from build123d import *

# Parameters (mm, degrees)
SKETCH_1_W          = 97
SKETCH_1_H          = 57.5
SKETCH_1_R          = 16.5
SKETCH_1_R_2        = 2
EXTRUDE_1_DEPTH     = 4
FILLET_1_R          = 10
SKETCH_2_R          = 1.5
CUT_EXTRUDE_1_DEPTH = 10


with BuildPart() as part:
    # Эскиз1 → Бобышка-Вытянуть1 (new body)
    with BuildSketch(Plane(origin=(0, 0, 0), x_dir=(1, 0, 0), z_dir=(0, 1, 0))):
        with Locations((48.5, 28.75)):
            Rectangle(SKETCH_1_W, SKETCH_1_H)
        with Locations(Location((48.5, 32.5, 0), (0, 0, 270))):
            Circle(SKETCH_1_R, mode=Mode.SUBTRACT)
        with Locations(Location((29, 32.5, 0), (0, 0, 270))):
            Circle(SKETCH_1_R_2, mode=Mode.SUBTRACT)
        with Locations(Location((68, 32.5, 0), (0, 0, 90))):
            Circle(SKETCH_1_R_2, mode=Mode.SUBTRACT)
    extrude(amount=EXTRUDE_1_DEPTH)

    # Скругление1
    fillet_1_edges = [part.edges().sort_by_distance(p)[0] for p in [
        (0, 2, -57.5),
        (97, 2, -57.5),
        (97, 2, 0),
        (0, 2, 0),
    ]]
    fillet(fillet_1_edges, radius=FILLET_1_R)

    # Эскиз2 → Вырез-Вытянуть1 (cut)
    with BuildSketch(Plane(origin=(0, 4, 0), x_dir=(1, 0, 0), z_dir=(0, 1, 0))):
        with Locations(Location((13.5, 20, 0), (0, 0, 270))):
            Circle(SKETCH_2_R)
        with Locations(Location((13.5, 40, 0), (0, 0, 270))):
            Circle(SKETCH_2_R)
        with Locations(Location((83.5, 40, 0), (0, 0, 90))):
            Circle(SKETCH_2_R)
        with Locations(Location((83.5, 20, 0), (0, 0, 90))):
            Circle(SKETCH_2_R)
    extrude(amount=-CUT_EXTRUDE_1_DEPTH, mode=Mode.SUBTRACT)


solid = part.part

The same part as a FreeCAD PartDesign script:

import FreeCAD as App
import Part
import Sketcher


def edges_at(feature, points):
    """Names of the edges that pass closest to the given points."""
    edges = feature.Shape.Edges
    near = lambda p: min(range(len(edges)), key=lambda i: edges[i].distToShape(Part.Vertex(*p))[0])
    return sorted({f"Edge{near(p) + 1}" for p in points})

doc = App.newDocument("Part")
body = doc.addObject("PartDesign::Body", "Body")

# Sketch on XZ plane
sketch1 = body.newObject("Sketcher::SketchObject", "Sketch")
sketch1.AttachmentSupport = (doc.getObject("XZ_Plane"), [""])
sketch1.MapMode = "FlatFace"
sketch1.addGeometry([
    Part.LineSegment(App.Vector(0, -57.5, 0), App.Vector(0, 0, 0)),  # 0
    Part.LineSegment(App.Vector(0, 0, 0), App.Vector(97, 0, 0)),  # 1
    Part.LineSegment(App.Vector(97, 0, 0), App.Vector(97, -57.5, 0)),  # 2
    Part.LineSegment(App.Vector(97, -57.5, 0), App.Vector(0, -57.5, 0)),  # 3
    Part.Circle(App.Vector(29, -32.5, 0), App.Vector(0, 0, 1), 2),  # 4
    Part.Circle(App.Vector(48.5, -32.5, 0), App.Vector(0, 0, 1), 16.5),  # 5
    Part.Circle(App.Vector(68, -32.5, 0), App.Vector(0, 0, 1), 2),  # 6
], False)
sketch1.addConstraint([
    Sketcher.Constraint("Coincident", 0, 2, 1, 1),
    Sketcher.Constraint("Coincident", 1, 2, 2, 1),
    Sketcher.Constraint("Coincident", 2, 2, 3, 1),
    Sketcher.Constraint("Coincident", 3, 2, 0, 1),
    Sketcher.Constraint("Vertical", 0),
    Sketcher.Constraint("Horizontal", 1),
    Sketcher.Constraint("Vertical", 2),
    Sketcher.Constraint("Horizontal", 3),
    Sketcher.Constraint("Coincident", 0, 2, -1, 1),
    Sketcher.Constraint("Equal", 4, 6),
    Sketcher.Constraint("Horizontal", 4, 3, 5, 3),
    Sketcher.Constraint("Horizontal", 5, 3, 6, 3),
    Sketcher.Constraint("Diameter", 4, 4.0),
    Sketcher.Constraint("Diameter", 5, 33.0),
    Sketcher.Constraint("DistanceX", 1, 1, 1, 2, 97.0),
    Sketcher.Constraint("DistanceY", 0, 1, 0, 2, 57.5),
    Sketcher.Constraint("DistanceX", -1, 1, 4, 3, 29.0),
    Sketcher.Constraint("DistanceX", -1, 1, 6, 3, 68.0),
    Sketcher.Constraint("DistanceY", 2, 2, 6, 3, 25.0),
    Sketcher.Constraint("DistanceX", -1, 1, 5, 3, 48.5),
])
pad1 = body.newObject("PartDesign::Pad", "Pad")
pad1.Profile = sketch1
pad1.Length = 4
pad1.Reversed = True
doc.recompute()

fillet = body.newObject("PartDesign::Fillet", "Fillet")
fillet.Base = (pad1, edges_at(pad1, [
    (0, 2, -57.5),
    (97, 2, -57.5),
    (97, 2, 0),
    (0, 2, 0),
]))
fillet.Radius = 10

# Sketch on XZ plane
sketch2 = body.newObject("Sketcher::SketchObject", "Sketch001")
sketch2.AttachmentSupport = (doc.getObject("XZ_Plane"), [""])
sketch2.MapMode = "FlatFace"
sketch2.AttachmentOffset = App.Placement(App.Vector(0, 0, -4), App.Rotation())
sketch2.addGeometry([
    Part.Circle(App.Vector(13.5, -20, 0), App.Vector(0, 0, 1), 1.5),
    Part.Circle(App.Vector(13.5, -40, 0), App.Vector(0, 0, 1), 1.5),
    Part.Circle(App.Vector(83.5, -40, 0), App.Vector(0, 0, 1), 1.5),
    Part.Circle(App.Vector(83.5, -20, 0), App.Vector(0, 0, 1), 1.5),
], False)
sketch2.addConstraint([
    Sketcher.Constraint("Equal", 0, 1),
    Sketcher.Constraint("Equal", 1, 2),
    Sketcher.Constraint("Equal", 2, 3),
    Sketcher.Constraint("Horizontal", 1, 3, 2, 3),
    Sketcher.Constraint("Horizontal", 0, 3, 3, 3),
    Sketcher.Constraint("Vertical", 0, 3, 1, 3),
    Sketcher.Constraint("Vertical", 2, 3, 3, 3),
    Sketcher.Constraint("Diameter", 0, 3.0),
    Sketcher.Constraint("DistanceY", 0, 3, -1, 1, 20.0),
    Sketcher.Constraint("DistanceY", 1, 3, -1, 1, 40.0),
    Sketcher.Constraint("DistanceX", 1, 3, 2, 3, 70.0),
    Sketcher.Constraint("DistanceX", -1, 1, 0, 3, 13.5),
])
pocket1 = body.newObject("PartDesign::Pocket", "Pocket")
pocket1.Profile = sketch2
pocket1.Length = 10
pocket1.Reversed = True

doc.recompute()
